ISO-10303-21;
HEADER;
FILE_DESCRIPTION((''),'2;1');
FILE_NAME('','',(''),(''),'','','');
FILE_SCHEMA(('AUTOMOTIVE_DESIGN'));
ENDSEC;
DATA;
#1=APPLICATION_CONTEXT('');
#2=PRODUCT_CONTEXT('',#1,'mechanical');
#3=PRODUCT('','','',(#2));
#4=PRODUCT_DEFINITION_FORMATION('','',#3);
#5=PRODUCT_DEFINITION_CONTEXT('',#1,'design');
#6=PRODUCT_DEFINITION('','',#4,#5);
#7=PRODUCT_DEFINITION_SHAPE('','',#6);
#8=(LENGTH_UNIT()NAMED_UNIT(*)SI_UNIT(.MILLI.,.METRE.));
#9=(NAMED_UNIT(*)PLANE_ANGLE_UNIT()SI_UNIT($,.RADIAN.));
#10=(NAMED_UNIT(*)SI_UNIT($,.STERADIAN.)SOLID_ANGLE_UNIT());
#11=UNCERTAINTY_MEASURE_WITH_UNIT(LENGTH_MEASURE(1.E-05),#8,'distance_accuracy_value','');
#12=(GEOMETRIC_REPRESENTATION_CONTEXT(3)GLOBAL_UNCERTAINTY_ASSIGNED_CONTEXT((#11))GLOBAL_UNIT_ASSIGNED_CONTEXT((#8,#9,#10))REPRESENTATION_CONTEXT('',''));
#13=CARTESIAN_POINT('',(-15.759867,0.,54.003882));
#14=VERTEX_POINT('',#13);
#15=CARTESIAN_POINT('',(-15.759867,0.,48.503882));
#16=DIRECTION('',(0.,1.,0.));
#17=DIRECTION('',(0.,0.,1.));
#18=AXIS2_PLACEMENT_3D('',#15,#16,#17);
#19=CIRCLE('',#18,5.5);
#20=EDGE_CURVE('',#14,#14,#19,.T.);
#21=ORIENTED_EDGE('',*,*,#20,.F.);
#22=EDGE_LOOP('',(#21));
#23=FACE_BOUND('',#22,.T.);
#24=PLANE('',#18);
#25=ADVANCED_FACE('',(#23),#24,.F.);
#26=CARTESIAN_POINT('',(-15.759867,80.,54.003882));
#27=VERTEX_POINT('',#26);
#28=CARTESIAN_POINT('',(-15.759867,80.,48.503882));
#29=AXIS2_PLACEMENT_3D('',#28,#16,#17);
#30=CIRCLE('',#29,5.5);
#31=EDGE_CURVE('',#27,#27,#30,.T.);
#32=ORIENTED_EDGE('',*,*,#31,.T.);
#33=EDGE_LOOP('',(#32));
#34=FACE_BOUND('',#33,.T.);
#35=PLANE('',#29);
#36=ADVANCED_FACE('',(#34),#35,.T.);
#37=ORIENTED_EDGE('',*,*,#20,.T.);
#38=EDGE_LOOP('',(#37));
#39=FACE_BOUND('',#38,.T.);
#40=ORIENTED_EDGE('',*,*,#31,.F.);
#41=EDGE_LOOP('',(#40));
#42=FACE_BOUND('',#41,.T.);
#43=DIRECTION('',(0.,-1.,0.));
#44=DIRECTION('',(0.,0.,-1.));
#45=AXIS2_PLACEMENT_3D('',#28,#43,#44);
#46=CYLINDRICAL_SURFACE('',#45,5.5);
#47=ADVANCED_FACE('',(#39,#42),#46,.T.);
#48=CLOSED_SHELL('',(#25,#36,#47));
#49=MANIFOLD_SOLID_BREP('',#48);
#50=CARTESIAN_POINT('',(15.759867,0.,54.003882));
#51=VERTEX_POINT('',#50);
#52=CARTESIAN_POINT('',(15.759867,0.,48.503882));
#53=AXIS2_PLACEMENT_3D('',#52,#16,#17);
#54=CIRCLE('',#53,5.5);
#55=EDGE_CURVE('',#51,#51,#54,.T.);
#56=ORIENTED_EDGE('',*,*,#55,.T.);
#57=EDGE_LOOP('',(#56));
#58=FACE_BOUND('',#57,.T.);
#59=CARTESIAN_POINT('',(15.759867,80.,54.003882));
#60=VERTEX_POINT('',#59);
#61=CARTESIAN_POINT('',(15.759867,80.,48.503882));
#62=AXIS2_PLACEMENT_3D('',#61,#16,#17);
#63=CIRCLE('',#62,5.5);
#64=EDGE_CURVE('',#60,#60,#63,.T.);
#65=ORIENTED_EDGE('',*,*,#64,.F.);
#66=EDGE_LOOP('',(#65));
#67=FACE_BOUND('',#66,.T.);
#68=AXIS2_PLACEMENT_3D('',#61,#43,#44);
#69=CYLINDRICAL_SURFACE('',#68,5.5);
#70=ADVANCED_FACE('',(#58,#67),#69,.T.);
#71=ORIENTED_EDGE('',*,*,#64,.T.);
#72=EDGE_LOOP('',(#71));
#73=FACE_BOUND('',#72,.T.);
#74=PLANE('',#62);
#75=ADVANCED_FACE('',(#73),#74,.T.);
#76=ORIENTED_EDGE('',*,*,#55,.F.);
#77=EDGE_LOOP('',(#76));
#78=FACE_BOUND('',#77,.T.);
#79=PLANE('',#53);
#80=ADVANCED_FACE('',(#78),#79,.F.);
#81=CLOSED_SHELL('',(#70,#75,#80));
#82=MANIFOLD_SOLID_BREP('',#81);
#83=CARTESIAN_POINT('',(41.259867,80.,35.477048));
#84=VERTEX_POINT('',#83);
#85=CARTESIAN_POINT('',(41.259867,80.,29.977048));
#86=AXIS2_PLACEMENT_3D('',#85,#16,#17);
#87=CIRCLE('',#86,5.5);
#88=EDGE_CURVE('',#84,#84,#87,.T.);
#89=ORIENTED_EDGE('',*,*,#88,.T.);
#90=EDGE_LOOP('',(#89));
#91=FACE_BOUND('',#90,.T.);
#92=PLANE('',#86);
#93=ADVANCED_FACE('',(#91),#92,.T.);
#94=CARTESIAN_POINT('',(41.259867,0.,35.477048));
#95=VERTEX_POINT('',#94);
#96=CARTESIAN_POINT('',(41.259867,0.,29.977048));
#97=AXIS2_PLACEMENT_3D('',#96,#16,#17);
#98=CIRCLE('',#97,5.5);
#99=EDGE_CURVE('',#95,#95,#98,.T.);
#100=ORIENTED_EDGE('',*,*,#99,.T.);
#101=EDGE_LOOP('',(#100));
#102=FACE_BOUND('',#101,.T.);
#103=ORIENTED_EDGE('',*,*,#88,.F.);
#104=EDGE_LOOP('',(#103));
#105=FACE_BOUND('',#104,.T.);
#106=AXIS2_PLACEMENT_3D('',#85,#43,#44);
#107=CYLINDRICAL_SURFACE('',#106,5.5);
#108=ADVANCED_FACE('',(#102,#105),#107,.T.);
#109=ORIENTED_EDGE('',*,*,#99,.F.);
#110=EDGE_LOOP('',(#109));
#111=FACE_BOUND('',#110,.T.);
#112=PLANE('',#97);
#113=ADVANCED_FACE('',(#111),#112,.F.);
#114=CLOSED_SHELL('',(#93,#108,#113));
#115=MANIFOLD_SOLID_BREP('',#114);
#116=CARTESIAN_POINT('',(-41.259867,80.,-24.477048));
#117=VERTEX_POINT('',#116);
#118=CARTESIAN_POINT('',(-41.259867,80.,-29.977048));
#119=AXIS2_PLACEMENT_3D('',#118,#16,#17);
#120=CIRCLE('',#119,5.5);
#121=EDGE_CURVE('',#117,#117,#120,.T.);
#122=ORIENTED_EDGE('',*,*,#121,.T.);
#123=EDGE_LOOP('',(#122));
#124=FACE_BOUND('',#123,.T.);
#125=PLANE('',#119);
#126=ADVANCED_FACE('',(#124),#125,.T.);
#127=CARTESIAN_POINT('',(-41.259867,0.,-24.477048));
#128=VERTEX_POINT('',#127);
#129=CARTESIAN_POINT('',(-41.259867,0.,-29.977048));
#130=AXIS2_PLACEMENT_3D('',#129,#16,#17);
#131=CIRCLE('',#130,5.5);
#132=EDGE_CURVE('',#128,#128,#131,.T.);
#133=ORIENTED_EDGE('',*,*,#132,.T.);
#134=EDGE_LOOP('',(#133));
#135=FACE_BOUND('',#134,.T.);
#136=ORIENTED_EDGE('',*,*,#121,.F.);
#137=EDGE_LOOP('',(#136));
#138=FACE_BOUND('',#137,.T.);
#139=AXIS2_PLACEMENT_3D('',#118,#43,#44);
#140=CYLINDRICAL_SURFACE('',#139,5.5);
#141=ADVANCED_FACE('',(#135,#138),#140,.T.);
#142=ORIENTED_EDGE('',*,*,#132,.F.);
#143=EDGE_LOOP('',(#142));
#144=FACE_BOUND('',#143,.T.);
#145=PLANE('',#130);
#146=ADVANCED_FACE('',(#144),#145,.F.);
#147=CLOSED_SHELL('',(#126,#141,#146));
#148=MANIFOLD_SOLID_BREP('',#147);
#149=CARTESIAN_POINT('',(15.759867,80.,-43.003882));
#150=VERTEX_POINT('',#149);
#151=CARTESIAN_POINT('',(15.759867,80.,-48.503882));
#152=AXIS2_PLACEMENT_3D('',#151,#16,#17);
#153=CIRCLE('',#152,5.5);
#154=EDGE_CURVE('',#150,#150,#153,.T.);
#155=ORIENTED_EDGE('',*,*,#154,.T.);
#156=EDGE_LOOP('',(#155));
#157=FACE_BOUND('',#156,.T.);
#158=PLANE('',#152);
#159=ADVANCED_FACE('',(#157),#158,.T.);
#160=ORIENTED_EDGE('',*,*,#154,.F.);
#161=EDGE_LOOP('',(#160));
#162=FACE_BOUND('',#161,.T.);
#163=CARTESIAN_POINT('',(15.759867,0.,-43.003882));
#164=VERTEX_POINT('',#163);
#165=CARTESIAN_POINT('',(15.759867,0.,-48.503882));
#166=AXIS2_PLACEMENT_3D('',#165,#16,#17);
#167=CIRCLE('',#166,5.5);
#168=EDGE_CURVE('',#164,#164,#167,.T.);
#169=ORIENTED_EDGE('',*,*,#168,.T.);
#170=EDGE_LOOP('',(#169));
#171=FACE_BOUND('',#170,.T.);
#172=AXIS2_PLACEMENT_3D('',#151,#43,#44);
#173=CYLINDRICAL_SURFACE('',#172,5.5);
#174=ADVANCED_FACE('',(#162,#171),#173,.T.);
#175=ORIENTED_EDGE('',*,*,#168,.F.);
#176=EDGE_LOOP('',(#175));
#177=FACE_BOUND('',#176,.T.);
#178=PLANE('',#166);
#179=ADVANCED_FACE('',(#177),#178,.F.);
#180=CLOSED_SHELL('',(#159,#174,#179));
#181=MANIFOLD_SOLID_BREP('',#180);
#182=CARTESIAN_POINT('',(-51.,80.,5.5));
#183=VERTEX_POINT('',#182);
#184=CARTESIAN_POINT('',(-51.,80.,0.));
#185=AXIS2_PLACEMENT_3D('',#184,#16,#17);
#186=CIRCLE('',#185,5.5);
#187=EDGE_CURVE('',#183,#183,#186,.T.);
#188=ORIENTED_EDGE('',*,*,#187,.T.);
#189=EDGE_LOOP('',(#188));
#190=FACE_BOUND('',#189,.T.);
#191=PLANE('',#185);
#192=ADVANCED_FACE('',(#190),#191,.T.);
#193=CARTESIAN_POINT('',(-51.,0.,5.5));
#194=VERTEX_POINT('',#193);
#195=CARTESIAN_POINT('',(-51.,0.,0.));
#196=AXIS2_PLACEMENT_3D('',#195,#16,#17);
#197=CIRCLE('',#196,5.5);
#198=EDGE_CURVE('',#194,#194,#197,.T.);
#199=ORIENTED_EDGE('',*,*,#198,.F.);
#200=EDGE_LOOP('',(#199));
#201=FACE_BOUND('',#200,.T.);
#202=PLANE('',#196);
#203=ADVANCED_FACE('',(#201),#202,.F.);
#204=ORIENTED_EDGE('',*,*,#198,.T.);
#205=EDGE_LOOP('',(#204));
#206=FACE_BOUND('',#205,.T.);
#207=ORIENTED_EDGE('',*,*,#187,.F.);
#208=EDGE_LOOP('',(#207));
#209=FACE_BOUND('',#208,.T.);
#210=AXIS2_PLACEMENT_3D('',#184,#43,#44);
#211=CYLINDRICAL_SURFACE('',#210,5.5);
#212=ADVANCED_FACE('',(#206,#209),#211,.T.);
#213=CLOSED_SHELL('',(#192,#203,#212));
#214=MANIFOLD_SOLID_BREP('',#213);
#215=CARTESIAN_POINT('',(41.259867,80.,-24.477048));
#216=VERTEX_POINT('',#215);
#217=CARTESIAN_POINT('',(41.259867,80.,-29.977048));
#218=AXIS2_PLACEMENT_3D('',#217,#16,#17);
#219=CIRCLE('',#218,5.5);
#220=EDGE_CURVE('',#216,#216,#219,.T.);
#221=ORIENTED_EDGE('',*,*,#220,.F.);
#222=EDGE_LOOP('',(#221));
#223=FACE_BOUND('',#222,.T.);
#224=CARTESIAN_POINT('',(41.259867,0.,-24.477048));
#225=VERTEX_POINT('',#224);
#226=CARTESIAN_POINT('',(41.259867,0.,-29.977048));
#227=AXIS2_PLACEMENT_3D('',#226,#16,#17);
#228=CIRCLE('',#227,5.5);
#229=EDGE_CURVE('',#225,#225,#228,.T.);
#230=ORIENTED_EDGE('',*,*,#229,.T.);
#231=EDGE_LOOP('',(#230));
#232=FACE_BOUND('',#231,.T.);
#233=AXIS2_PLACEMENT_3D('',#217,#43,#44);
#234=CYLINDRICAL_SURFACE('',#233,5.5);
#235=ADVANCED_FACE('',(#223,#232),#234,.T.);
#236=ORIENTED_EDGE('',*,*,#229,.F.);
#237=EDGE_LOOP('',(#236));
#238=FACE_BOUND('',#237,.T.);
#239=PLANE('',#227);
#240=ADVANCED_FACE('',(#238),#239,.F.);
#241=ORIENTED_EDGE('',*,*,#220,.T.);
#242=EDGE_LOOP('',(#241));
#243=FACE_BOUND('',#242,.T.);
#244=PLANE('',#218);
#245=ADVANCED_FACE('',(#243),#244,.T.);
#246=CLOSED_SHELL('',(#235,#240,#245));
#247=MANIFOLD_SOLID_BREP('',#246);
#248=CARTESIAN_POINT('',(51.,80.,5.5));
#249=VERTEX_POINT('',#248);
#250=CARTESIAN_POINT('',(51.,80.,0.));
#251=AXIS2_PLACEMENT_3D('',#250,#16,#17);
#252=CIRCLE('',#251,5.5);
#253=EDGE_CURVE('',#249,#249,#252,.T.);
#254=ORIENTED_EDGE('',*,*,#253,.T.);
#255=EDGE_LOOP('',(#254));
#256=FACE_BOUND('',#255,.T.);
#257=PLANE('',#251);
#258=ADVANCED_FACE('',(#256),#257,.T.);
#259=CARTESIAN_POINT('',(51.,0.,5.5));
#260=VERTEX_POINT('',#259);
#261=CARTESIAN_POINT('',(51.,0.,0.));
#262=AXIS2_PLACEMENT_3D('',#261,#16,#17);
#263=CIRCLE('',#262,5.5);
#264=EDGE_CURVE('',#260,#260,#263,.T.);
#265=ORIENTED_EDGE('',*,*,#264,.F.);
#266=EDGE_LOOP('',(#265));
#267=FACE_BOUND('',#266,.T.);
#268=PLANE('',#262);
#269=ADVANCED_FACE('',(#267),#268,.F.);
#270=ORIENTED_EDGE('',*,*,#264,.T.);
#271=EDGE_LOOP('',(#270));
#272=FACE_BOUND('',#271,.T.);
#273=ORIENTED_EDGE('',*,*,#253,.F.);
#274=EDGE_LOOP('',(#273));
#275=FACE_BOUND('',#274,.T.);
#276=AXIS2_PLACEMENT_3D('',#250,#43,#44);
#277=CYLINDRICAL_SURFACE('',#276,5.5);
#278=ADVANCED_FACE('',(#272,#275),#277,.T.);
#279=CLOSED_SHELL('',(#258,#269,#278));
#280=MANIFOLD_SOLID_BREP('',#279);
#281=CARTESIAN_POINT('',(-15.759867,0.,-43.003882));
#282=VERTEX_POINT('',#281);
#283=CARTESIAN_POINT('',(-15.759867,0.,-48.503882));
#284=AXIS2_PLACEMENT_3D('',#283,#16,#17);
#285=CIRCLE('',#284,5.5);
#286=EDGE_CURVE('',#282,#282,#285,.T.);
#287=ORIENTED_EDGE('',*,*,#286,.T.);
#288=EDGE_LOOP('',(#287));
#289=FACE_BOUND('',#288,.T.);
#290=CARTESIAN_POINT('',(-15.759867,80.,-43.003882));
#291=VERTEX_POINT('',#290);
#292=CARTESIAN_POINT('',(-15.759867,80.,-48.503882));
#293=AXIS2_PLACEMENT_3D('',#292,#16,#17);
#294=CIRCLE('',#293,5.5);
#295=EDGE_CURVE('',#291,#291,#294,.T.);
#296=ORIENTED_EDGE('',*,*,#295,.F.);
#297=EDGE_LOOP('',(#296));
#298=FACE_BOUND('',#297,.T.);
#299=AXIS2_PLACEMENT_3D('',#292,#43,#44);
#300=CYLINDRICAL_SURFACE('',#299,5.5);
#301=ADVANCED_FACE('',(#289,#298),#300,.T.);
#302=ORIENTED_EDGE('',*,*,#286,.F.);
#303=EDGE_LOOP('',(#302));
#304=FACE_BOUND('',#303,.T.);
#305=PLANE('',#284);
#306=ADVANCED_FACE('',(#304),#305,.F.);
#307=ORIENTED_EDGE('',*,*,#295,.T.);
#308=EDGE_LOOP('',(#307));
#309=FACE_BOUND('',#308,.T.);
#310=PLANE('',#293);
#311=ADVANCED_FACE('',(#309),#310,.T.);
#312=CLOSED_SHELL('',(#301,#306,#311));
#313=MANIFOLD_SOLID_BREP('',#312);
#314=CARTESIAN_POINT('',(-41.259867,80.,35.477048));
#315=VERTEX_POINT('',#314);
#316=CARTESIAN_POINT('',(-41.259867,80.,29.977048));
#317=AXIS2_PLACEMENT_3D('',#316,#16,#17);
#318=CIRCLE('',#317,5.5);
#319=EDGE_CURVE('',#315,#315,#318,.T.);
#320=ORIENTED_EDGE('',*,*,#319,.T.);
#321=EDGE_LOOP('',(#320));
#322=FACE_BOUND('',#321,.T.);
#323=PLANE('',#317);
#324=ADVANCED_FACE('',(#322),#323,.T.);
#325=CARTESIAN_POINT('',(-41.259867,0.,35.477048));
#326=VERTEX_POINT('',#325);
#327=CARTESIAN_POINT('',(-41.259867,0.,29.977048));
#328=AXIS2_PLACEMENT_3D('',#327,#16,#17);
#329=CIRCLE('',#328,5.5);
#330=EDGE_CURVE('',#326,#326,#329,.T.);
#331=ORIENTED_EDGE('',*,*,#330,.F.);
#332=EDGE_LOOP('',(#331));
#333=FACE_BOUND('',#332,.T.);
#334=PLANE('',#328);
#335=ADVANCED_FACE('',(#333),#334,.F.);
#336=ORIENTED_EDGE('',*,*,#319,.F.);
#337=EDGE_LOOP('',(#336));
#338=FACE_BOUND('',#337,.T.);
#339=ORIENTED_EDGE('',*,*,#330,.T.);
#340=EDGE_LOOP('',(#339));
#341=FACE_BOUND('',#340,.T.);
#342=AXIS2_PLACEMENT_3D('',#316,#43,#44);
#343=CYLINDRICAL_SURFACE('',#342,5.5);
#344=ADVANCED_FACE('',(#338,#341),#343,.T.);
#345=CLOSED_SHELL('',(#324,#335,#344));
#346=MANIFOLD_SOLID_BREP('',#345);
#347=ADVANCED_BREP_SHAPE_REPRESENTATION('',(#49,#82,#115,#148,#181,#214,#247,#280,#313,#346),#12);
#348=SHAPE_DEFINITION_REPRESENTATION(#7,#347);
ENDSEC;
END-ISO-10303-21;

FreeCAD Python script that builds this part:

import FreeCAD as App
import Part
import Sketcher

doc = App.newDocument("Part")
params = doc.addObject("Spreadsheet::Sheet", "Params")
for row, (alias, value) in enumerate([
    ("sketch1_diameter", "11 mm"),
    ("pad1_length", "80 mm"),
    ("sketch2_diameter", "11 mm"),
    ("pad2_length", "80 mm"),
    ("sketch3_diameter", "11 mm"),
    ("pad3_length", "80 mm"),
    ("sketch4_diameter", "11 mm"),
    ("pad4_length", "80 mm"),
    ("sketch5_diameter", "11 mm"),
    ("pad5_length", "80 mm"),
    ("sketch6_diameter", "11 mm"),
    ("pad6_length", "80 mm"),
    ("sketch7_diameter", "11 mm"),
    ("pad7_length", "80 mm"),
    ("sketch8_diameter", "11 mm"),
    ("pad8_length", "80 mm"),
    ("sketch9_diameter", "11 mm"),
    ("pad9_length", "80 mm"),
    ("sketch10_diameter", "11 mm"),
    ("pad10_length", "80 mm"),
], start=1):
    params.set(f"A{row}", alias)
    params.set(f"B{row}", "=" + value)
    params.setAlias(f"B{row}", alias)

body = doc.addObject("PartDesign::Body", "Body")

sketch1 = body.newObject("Sketcher::SketchObject", "Sketch")
sketch1.AttachmentSupport = (doc.getObject("XZ_Plane"), [""])
sketch1.MapMode = "FlatFace"
sketch1.addGeometry(Part.Circle(App.Vector(51, 0, 0), App.Vector(0, 0, 1), 6), False)
sketch1.addConstraint([
    Sketcher.Constraint("PointOnObject", 0, 3, -1),
    Sketcher.Constraint("Diameter", 0, 11.0),
    Sketcher.Constraint("DistanceX", -1, 1, 0, 3, 51.0),
])
sketch1.setExpression("Constraints[1]", "Params.sketch1_diameter")
pad1 = body.newObject("PartDesign::Pad", "Pad")
pad1.Profile = sketch1
pad1.setExpression("Length", "Params.pad1_length")
pad1.Reversed = True
body2 = doc.addObject("PartDesign::Body", "Body001")

sketch2 = body2.newObject("Sketcher::SketchObject", "Sketch001")
sketch2.AttachmentSupport = (doc.getObject("XZ_Plane001"), [""])
sketch2.MapMode = "FlatFace"
sketch2.addGeometry(Part.Circle(App.Vector(41, 30, 0), App.Vector(0, 0, 1), 6), False)
sketch2.addConstraint([
    Sketcher.Constraint("Diameter", 0, 11.0),
    Sketcher.Constraint("DistanceX", -1, 1, 0, 3, 41.259867),
    Sketcher.Constraint("DistanceY", -1, 1, 0, 3, 29.977048),
])
sketch2.setExpression("Constraints[0]", "Params.sketch2_diameter")
pad2 = body2.newObject("PartDesign::Pad", "Pad001")
pad2.Profile = sketch2
pad2.setExpression("Length", "Params.pad2_length")
pad2.Reversed = True
body3 = doc.addObject("PartDesign::Body", "Body002")

sketch3 = body3.newObject("Sketcher::SketchObject", "Sketch002")
sketch3.AttachmentSupport = (doc.getObject("XZ_Plane002"), [""])
sketch3.MapMode = "FlatFace"
sketch3.addGeometry(Part.Circle(App.Vector(16, 49, 0), App.Vector(0, 0, 1), 6), False)
sketch3.addConstraint([
    Sketcher.Constraint("Diameter", 0, 11.0),
    Sketcher.Constraint("DistanceX", -1, 1, 0, 3, 15.759867),
    Sketcher.Constraint("DistanceY", -1, 1, 0, 3, 48.503882),
])
sketch3.setExpression("Constraints[0]", "Params.sketch3_diameter")
pad3 = body3.newObject("PartDesign::Pad", "Pad002")
pad3.Profile = sketch3
pad3.setExpression("Length", "Params.pad3_length")
pad3.Reversed = True
body4 = doc.addObject("PartDesign::Body", "Body003")

sketch4 = body4.newObject("Sketcher::SketchObject", "Sketch003")
sketch4.AttachmentSupport = (doc.getObject("XZ_Plane003"), [""])
sketch4.MapMode = "FlatFace"
sketch4.addGeometry(Part.Circle(App.Vector(-16, 49, 0), App.Vector(0, 0, 1), 6), False)
sketch4.addConstraint([
    Sketcher.Constraint("Diameter", 0, 11.0),
    Sketcher.Constraint("DistanceX", 0, 3, -1, 1, 15.759867),
    Sketcher.Constraint("DistanceY", -1, 1, 0, 3, 48.503882),
])
sketch4.setExpression("Constraints[0]", "Params.sketch4_diameter")
pad4 = body4.newObject("PartDesign::Pad", "Pad003")
pad4.Profile = sketch4
pad4.setExpression("Length", "Params.pad4_length")
pad4.Reversed = True
body5 = doc.addObject("PartDesign::Body", "Body004")

sketch5 = body5.newObject("Sketcher::SketchObject", "Sketch004")
sketch5.AttachmentSupport = (doc.getObject("XZ_Plane004"), [""])
sketch5.MapMode = "FlatFace"
sketch5.addGeometry(Part.Circle(App.Vector(-41, 30, 0), App.Vector(0, 0, 1), 6), False)
sketch5.addConstraint([
    Sketcher.Constraint("Diameter", 0, 11.0),
    Sketcher.Constraint("DistanceX", 0, 3, -1, 1, 41.259867),
    Sketcher.Constraint("DistanceY", -1, 1, 0, 3, 29.977048),
])
sketch5.setExpression("Constraints[0]", "Params.sketch5_diameter")
pad5 = body5.newObject("PartDesign::Pad", "Pad004")
pad5.Profile = sketch5
pad5.setExpression("Length", "Params.pad5_length")
pad5.Reversed = True
body6 = doc.addObject("PartDesign::Body", "Body005")

sketch6 = body6.newObject("Sketcher::SketchObject", "Sketch005")
sketch6.AttachmentSupport = (doc.getObject("XZ_Plane005"), [""])
sketch6.MapMode = "FlatFace"
sketch6.addGeometry(Part.Circle(App.Vector(-51, 0, 0), App.Vector(0, 0, 1), 6), False)
sketch6.addConstraint([
    Sketcher.Constraint("PointOnObject", 0, 3, -1),
    Sketcher.Constraint("Diameter", 0, 11.0),
    Sketcher.Constraint("DistanceX", 0, 3, -1, 1, 51.0),
])
sketch6.setExpression("Constraints[1]", "Params.sketch6_diameter")
pad6 = body6.newObject("PartDesign::Pad", "Pad005")
pad6.Profile = sketch6
pad6.setExpression("Length", "Params.pad6_length")
pad6.Reversed = True
body7 = doc.addObject("PartDesign::Body", "Body006")

sketch7 = body7.newObject("Sketcher::SketchObject", "Sketch006")
sketch7.AttachmentSupport = (doc.getObject("XZ_Plane006"), [""])
sketch7.MapMode = "FlatFace"
sketch7.addGeometry(Part.Circle(App.Vector(-41, -30, 0), App.Vector(0, 0, 1), 6), False)
sketch7.addConstraint([
    Sketcher.Constraint("Diameter", 0, 11.0),
    Sketcher.Constraint("DistanceX", 0, 3, -1, 1, 41.259867),
    Sketcher.Constraint("DistanceY", 0, 3, -1, 1, 29.977048),
])
sketch7.setExpression("Constraints[0]", "Params.sketch7_diameter")
pad7 = body7.newObject("PartDesign::Pad", "Pad006")
pad7.Profile = sketch7
pad7.setExpression("Length", "Params.pad7_length")
pad7.Reversed = True
body8 = doc.addObject("PartDesign::Body", "Body007")

sketch8 = body8.newObject("Sketcher::SketchObject", "Sketch007")
sketch8.AttachmentSupport = (doc.getObject("XZ_Plane007"), [""])
sketch8.MapMode = "FlatFace"
sketch8.addGeometry(Part.Circle(App.Vector(-16, -49, 0), App.Vector(0, 0, 1), 6), False)
sketch8.addConstraint([
    Sketcher.Constraint("Diameter", 0, 11.0),
    Sketcher.Constraint("DistanceX", 0, 3, -1, 1, 15.759867),
    Sketcher.Constraint("DistanceY", 0, 3, -1, 1, 48.503882),
])
sketch8.setExpression("Constraints[0]", "Params.sketch8_diameter")
pad8 = body8.newObject("PartDesign::Pad", "Pad007")
pad8.Profile = sketch8
pad8.setExpression("Length", "Params.pad8_length")
pad8.Reversed = True
body9 = doc.addObject("PartDesign::Body", "Body008")

sketch9 = body9.newObject("Sketcher::SketchObject", "Sketch008")
sketch9.AttachmentSupport = (doc.getObject("XZ_Plane008"), [""])
sketch9.MapMode = "FlatFace"
sketch9.addGeometry(Part.Circle(App.Vector(16, -49, 0), App.Vector(0, 0, 1), 6), False)
sketch9.addConstraint([
    Sketcher.Constraint("Diameter", 0, 11.0),
    Sketcher.Constraint("DistanceX", -1, 1, 0, 3, 15.759867),
    Sketcher.Constraint("DistanceY", 0, 3, -1, 1, 48.503882),
])
sketch9.setExpression("Constraints[0]", "Params.sketch9_diameter")
pad9 = body9.newObject("PartDesign::Pad", "Pad008")
pad9.Profile = sketch9
pad9.setExpression("Length", "Params.pad9_length")
pad9.Reversed = True
body10 = doc.addObject("PartDesign::Body", "Body009")

sketch10 = body10.newObject("Sketcher::SketchObject", "Sketch009")
sketch10.AttachmentSupport = (doc.getObject("XZ_Plane009"), [""])
sketch10.MapMode = "FlatFace"
sketch10.addGeometry(Part.Circle(App.Vector(41, -30, 0), App.Vector(0, 0, 1), 6), False)
sketch10.addConstraint([
    Sketcher.Constraint("Diameter", 0, 11.0),
    Sketcher.Constraint("DistanceX", -1, 1, 0, 3, 41.259867),
    Sketcher.Constraint("DistanceY", 0, 3, -1, 1, 29.977048),
])
sketch10.setExpression("Constraints[0]", "Params.sketch10_diameter")
pad10 = body10.newObject("PartDesign::Pad", "Pad009")
pad10.Profile = sketch10
pad10.setExpression("Length", "Params.pad10_length")
pad10.Reversed = True

doc.recompute()
